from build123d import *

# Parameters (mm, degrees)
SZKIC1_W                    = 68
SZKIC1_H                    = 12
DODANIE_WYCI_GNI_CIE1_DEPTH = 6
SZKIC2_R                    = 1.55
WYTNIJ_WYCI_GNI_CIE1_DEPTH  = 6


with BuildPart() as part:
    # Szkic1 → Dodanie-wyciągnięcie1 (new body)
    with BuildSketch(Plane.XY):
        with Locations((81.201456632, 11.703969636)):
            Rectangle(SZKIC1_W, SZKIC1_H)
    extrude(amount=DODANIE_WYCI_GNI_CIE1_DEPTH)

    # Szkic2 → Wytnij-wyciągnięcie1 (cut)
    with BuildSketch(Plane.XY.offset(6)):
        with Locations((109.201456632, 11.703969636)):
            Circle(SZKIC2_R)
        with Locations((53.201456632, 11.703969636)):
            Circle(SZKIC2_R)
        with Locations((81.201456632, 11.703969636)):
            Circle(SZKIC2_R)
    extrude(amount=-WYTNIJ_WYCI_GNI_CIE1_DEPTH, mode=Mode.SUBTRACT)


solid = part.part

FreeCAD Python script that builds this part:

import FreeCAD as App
import Part
import Sketcher

V = App.Vector
Q = App.Units.Quantity

doc = App.newDocument("Part")
body = doc.addObject("PartDesign::Body", "Body")

sketch1 = body.newObject("Sketcher::SketchObject", "Sketch")
sketch1.AttachmentSupport = (doc.getObject("XY_Plane"), [""])
sketch1.MapMode = "FlatFace"
sketch1.addGeometry([
    Part.LineSegment(V(47, 18, 0), V(47, 6, 0)),
    Part.LineSegment(V(47, 6, 0), V(115, 6, 0)),
    Part.LineSegment(V(115, 6, 0), V(115, 18, 0)),
    Part.LineSegment(V(115, 18, 0), V(47, 18, 0)),
], False)
sketch1.addConstraint([
    Sketcher.Constraint("Coincident", 0, 2, 1, 1),
    Sketcher.Constraint("Coincident", 1, 2, 2, 1),
    Sketcher.Constraint("Coincident", 2, 2, 3, 1),
    Sketcher.Constraint("Coincident", 3, 2, 0, 1),
    Sketcher.Constraint("Vertical", 0),
    Sketcher.Constraint("Horizontal", 1),
    Sketcher.Constraint("Vertical", 2),
    Sketcher.Constraint("Horizontal", 3),
    Sketcher.Constraint("DistanceX", 1, 1, 1, 2, Q("68 mm")),
    Sketcher.Constraint("DistanceY", 0, 2, 0, 1, Q("12 mm")),
    Sketcher.Constraint("DistanceY", -1, 1, 0, 2, Q("5.70397 mm")),
    Sketcher.Constraint("DistanceX", -1, 1, 0, 2, Q("47.201457 mm")),
])
pad1 = body.newObject("PartDesign::Pad", "Pad")
pad1.Profile = sketch1
pad1.Length = 6

sketch2 = body.newObject("Sketcher::SketchObject", "Sketch001")
sketch2.AttachmentSupport = (doc.getObject("XY_Plane"), [""])
sketch2.MapMode = "FlatFace"
sketch2.AttachmentOffset = App.Placement(V(0, 0, 6), App.Rotation())
sketch2.addGeometry([
    Part.Circle(V(109.2, 11.7, 0), V(0, 0, 1), 1.6),
    Part.Circle(V(53.2, 11.7, 0), V(0, 0, 1), 1.6),
    Part.Circle(V(81.2, 11.7, 0), V(0, 0, 1), 1.6),
], False)
sketch2.addConstraint([
    Sketcher.Constraint("Equal", 0, 1),
    Sketcher.Constraint("Equal", 1, 2),
    Sketcher.Constraint("Horizontal", 0, 3, 1, 3),
    Sketcher.Constraint("Horizontal", 1, 3, 2, 3),
    Sketcher.Constraint("Diameter", 0, Q("3.1 mm")),
    Sketcher.Constraint("DistanceX", 1, 3, 0, 3, Q("56 mm")),
    Sketcher.Constraint("DistanceX", 2, 3, 0, 3, Q("28 mm")),
    Sketcher.Constraint("DistanceY", -1, 1, 0, 3, Q("11.70397 mm")),
    Sketcher.Constraint("DistanceX", -1, 1, 0, 3, Q("109.201457 mm")),
])
pocket1 = body.newObject("PartDesign::Pocket", "Pocket")
pocket1.Profile = sketch2
pocket1.Length = 6

doc.recompute()
